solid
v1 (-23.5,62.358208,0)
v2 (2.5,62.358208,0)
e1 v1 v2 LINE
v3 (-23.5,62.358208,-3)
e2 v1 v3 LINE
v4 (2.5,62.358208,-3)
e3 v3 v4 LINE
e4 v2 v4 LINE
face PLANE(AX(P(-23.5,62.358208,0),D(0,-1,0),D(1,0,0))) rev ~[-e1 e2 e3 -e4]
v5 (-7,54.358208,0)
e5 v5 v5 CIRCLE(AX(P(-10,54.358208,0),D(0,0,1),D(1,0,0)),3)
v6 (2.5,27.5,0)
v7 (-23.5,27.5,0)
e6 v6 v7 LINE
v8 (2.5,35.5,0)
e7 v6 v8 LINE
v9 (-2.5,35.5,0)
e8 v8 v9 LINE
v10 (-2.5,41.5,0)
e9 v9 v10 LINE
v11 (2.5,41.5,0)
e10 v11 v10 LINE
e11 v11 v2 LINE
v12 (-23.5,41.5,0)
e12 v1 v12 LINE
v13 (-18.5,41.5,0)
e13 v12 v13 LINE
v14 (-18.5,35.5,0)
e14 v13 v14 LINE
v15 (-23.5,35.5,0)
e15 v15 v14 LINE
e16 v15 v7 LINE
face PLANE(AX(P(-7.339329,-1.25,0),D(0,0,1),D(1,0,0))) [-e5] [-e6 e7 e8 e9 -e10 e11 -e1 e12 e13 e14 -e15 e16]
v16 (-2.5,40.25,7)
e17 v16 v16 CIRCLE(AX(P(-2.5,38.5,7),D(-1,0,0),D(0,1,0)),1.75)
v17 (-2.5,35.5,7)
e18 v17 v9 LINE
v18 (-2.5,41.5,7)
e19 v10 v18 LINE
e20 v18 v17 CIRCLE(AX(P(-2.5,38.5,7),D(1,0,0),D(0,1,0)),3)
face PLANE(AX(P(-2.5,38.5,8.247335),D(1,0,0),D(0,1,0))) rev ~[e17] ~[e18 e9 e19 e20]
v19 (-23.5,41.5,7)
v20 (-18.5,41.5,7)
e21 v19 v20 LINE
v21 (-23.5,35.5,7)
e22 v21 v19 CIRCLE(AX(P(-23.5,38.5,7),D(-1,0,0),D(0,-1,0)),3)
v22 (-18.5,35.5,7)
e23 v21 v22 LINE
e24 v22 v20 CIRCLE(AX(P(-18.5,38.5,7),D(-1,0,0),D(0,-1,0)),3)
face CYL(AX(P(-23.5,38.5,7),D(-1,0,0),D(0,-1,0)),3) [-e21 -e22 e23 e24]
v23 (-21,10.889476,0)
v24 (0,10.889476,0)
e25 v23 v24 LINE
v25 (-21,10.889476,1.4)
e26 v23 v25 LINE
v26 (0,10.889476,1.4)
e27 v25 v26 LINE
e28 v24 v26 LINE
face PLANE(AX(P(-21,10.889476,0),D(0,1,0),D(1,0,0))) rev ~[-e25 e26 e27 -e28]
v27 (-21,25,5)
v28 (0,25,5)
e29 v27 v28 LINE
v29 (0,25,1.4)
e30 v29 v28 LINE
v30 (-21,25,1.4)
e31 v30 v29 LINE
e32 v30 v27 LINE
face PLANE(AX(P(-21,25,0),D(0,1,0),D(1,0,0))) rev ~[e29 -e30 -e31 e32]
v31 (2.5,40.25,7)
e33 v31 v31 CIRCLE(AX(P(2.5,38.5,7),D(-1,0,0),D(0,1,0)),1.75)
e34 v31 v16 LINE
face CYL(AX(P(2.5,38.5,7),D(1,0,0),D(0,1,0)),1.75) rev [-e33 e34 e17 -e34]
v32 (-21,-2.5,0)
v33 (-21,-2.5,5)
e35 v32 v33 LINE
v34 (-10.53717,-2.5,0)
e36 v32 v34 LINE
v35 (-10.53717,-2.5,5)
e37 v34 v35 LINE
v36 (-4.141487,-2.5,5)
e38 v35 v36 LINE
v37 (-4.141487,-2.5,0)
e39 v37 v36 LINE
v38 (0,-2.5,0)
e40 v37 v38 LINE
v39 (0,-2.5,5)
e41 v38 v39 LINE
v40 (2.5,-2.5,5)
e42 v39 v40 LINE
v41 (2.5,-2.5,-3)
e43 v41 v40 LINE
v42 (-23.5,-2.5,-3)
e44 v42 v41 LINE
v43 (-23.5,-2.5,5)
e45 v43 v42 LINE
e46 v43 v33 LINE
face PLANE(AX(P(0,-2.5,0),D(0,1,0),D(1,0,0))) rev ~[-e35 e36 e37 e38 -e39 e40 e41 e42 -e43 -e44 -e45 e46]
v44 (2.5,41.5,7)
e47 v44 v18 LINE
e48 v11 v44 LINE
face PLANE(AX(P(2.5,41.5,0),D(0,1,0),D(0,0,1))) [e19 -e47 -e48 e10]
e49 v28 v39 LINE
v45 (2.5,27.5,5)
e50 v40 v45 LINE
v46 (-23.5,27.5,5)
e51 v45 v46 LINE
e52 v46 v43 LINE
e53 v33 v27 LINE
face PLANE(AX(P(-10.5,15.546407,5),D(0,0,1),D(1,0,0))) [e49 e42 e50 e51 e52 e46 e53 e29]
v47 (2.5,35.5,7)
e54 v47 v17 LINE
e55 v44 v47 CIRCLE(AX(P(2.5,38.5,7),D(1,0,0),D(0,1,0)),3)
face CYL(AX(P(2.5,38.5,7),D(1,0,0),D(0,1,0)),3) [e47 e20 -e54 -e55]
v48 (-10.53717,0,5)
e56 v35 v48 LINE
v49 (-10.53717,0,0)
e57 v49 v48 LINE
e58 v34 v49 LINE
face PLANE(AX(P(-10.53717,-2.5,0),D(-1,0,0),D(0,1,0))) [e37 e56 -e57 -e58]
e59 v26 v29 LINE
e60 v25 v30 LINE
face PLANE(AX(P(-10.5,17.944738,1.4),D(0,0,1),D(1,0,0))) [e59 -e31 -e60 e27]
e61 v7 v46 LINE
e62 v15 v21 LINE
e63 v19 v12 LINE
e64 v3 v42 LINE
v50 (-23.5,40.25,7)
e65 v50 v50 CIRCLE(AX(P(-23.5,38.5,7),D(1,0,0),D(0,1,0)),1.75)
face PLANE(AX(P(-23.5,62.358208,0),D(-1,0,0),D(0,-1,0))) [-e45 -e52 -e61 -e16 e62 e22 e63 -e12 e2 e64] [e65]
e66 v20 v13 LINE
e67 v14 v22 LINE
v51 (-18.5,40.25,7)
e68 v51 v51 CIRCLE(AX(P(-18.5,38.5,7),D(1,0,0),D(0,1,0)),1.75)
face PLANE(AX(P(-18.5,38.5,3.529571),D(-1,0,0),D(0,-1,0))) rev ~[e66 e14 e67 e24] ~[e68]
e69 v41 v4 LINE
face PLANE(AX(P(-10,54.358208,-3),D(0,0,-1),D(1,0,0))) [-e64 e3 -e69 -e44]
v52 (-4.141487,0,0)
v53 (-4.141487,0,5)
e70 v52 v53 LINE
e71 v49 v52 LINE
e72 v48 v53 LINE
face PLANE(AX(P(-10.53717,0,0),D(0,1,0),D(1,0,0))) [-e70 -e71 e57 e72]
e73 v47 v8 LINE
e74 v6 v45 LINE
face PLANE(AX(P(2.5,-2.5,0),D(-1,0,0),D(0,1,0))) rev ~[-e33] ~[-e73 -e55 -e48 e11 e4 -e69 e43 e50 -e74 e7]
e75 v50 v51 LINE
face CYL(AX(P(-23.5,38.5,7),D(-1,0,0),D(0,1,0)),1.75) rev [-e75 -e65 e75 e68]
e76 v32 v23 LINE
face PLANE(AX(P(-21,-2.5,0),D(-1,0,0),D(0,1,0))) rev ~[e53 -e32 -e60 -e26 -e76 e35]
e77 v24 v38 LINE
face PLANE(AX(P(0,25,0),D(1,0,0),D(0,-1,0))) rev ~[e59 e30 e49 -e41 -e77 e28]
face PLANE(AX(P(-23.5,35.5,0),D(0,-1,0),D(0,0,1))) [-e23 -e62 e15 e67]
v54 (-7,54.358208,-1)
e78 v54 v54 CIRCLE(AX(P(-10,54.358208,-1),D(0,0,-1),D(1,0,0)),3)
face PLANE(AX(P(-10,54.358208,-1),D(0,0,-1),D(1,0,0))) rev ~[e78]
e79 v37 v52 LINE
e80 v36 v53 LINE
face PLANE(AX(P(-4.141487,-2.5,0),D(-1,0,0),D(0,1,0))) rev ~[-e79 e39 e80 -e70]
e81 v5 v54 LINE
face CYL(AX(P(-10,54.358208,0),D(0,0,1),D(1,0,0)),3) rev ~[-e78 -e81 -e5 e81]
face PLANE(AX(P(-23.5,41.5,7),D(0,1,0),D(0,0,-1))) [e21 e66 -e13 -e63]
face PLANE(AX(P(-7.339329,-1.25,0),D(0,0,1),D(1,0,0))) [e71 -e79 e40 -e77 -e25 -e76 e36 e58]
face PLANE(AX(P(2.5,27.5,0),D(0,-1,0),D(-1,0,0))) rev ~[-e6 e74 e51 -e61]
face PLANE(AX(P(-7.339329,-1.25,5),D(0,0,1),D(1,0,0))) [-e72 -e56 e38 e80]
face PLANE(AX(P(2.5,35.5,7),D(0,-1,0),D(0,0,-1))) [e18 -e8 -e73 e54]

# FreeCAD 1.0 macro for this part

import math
import FreeCAD as App
import Part
import Sketcher
from FreeCAD import Vector
Q = App.Units.Quantity


def add_polygon(sketch, points):
    """Adds a closed chain of lines whose ends are joined by coincident constraints."""
    first, n = sketch.GeometryCount, len(points)
    for a, b in zip(points, points[1:] + points[:1]):
        sketch.addGeometry(Part.LineSegment(App.Vector(*a, 0), App.Vector(*b, 0)), False)
    for i in range(n):
        sketch.addConstraint(Sketcher.Constraint("Coincident", first + i, 2, first + (i + 1) % n, 1))

doc = App.newDocument("Part")
body = doc.addObject("PartDesign::Body", "Body")

sketch1 = doc.addObject("Sketcher::SketchObject", "Sketch")
body.addObject(sketch1)
sketch1.AttachmentSupport = (doc.XY_Plane, [""])
sketch1.MapMode = "FlatFace"
add_polygon(sketch1, [(2.5, -2.5), (2.5, 62.4), (-23.5, 62.4), (-23.5, -2.5)])
sketch1.addGeometry(Part.Circle(Vector(-10, 54.4, 0), Vector(0, 0, 1), 3), False)
sketch1.addConstraint([
    Sketcher.Constraint("Vertical", 0),
    Sketcher.Constraint("Horizontal", 1),
    Sketcher.Constraint("Vertical", 2),
    Sketcher.Constraint("Horizontal", 3),
    Sketcher.Constraint("Diameter", 4, Q("6 mm")),
    Sketcher.Constraint("DistanceX", 1, 2, 1, 1, Q("26 mm")),
    Sketcher.Constraint("DistanceX", 4, 3, -1, 1, Q("10 mm")),
    Sketcher.Constraint("DistanceY", 4, 3, 0, 2, Q("8 mm")),
    Sketcher.Constraint("DistanceX", -1, 1, 0, 2, Q("2.5 mm")),
    Sketcher.Constraint("DistanceY", 2, 2, -1, 1, Q("2.5 mm")),
    Sketcher.Constraint("DistanceY", 0, 1, 0, 2, Q("64.858208 mm")),
])
pad1 = doc.addObject("PartDesign::Pad", "Pad")
body.addObject(pad1)
pad1.Profile = sketch1
pad1.Length = 3
pad1.Reversed = True

sketch2 = doc.addObject("Sketcher::SketchObject", "Sketch001")
body.addObject(sketch2)
sketch2.AttachmentSupport = (doc.XY_Plane, [""])
sketch2.MapMode = "FlatFace"
add_polygon(sketch2, [(0, -2.5), (2.5, -2.5), (2.5, 27.5), (-23.5, 27.5), (-23.5, -2.5), (-21, -2.5), (-21, 25), (0, 25)])
add_polygon(sketch2, [(-10.5, 0), (-10.5, -2.5), (-4.1, -2.5), (-4.1, 0)])
sketch2.addConstraint([
    Sketcher.Constraint("Horizontal", 0),
    Sketcher.Constraint("Vertical", 1),
    Sketcher.Constraint("Horizontal", 2),
    Sketcher.Constraint("Vertical", 3),
    Sketcher.Constraint("Horizontal", 4),
    Sketcher.Constraint("Vertical", 5),
    Sketcher.Constraint("Horizontal", 6),
    Sketcher.Constraint("Vertical", 7),
    Sketcher.Constraint("Vertical", 8),
    Sketcher.Constraint("Horizontal", 9),
    Sketcher.Constraint("Vertical", 10),
    Sketcher.Constraint("Horizontal", 11),
    Sketcher.Constraint("PointOnObject", 6, 2, -2),
    Sketcher.Constraint("PointOnObject", 10, 2, -1),
    Sketcher.Constraint("Horizontal", 0, 2, 3, 2),
    Sketcher.Constraint("Horizontal", 7, 2, 8, 2),
    Sketcher.Constraint("Equal", 0, 4),
    Sketcher.Constraint("Equal", 4, 8),
    Sketcher.Constraint("DistanceX", 2, 2, 2, 1, Q("26 mm")),
    Sketcher.Constraint("DistanceX", 6, 1, 6, 2, Q("21 mm")),
    Sketcher.Constraint("DistanceY", 1, 1, 1, 2, Q("30 mm")),
    Sketcher.Constraint("DistanceY", 5, 1, 5, 2, Q("27.5 mm")),
    Sketcher.Constraint("DistanceX", 9, 1, 9, 2, Q("6.395683 mm")),
    Sketcher.Constraint("DistanceX", 8, 2, -1, 1, Q("10.53717 mm")),
])
pad2 = doc.addObject("PartDesign::Pad", "Pad001")
body.addObject(pad2)
pad2.Profile = sketch2
pad2.Length = 5

sketch3 = doc.addObject("Sketcher::SketchObject", "Sketch002")
body.addObject(sketch3)
sketch3.AttachmentSupport = (doc.XY_Plane, [""])
sketch3.MapMode = "FlatFace"
add_polygon(sketch3, [(-21, 25), (-21, 11), (0, 11), (0, 25)])
sketch3.addConstraint([
    Sketcher.Constraint("Vertical", 0),
    Sketcher.Constraint("Horizontal", 1),
    Sketcher.Constraint("Vertical", 2),
    Sketcher.Constraint("Horizontal", 3),
    Sketcher.Constraint("PointOnObject", 1, 2, -2),
    Sketcher.Constraint("DistanceX", 1, 1, 1, 2, Q("21 mm")),
    Sketcher.Constraint("DistanceY", -1, 1, 2, 2, Q("25 mm")),
    Sketcher.Constraint("DistanceY", 0, 2, 0, 1, Q("14.110524 mm")),
])
pad3 = doc.addObject("PartDesign::Pad", "Pad002")
body.addObject(pad3)
pad3.Profile = sketch3
pad3.Length = 1.4

sketch4 = doc.addObject("Sketcher::SketchObject", "Sketch003")
body.addObject(sketch4)
sketch4.AttachmentSupport = (doc.YZ_Plane, [""])
sketch4.MapMode = "FlatFace"
sketch4.AttachmentOffset = App.Placement(Vector(0, 0, 2.5), App.Rotation())
sketch4.addGeometry([
    Part.ArcOfCircle(Part.Circle(Vector(38.5, 7, 0), Vector(0, 0, 1), 3), math.radians(0), math.radians(180)),
    Part.LineSegment(Vector(35.5, 7, 0), Vector(35.5, 0, 0)),
    Part.LineSegment(Vector(35.5, 0, 0), Vector(41.5, 0, 0)),
    Part.LineSegment(Vector(41.5, 0, 0), Vector(41.5, 7, 0)),
    Part.Circle(Vector(38.5, 7, 0), Vector(0, 0, 1), 1.8),
], False)
sketch4.addConstraint([
    Sketcher.Constraint("Tangent", 0, 2, 1, 1),
    Sketcher.Constraint("Coincident", 1, 2, 2, 1),
    Sketcher.Constraint("Coincident", 2, 2, 3, 1),
    Sketcher.Constraint("Tangent", 3, 2, 0, 1),
    Sketcher.Constraint("Vertical", 1),
    Sketcher.Constraint("Horizontal", 2),
    Sketcher.Constraint("Vertical", 3),
    Sketcher.Constraint("Coincident", 4, 3, 0, 3),
    Sketcher.Constraint("PointOnObject", 1, 2, -1),
    Sketcher.Constraint("Radius", 0, Q("3 mm")),
    Sketcher.Constraint("Diameter", 4, Q("3.5 mm")),
    Sketcher.Constraint("DistanceY", 1, 2, 1, 1, Q("7 mm")),
    Sketcher.Constraint("DistanceX", -1, 1, 0, 3, Q("38.5 mm")),
])
pad4 = doc.addObject("PartDesign::Pad", "Pad003")
body.addObject(pad4)
pad4.Profile = sketch4
pad4.Length = 5
pad4.Reversed = True

sketch5 = doc.addObject("Sketcher::SketchObject", "Sketch004")
body.addObject(sketch5)
sketch5.AttachmentSupport = (doc.YZ_Plane, [""])
sketch5.MapMode = "FlatFace"
sketch5.AttachmentOffset = App.Placement(Vector(0, 0, -23.5), App.Rotation())
sketch5.addGeometry([
    Part.LineSegment(Vector(41.5, 7, 0), Vector(41.5, 0, 0)),
    Part.LineSegment(Vector(41.5, 0, 0), Vector(35.5, 0, 0)),
    Part.LineSegment(Vector(35.5, 0, 0), Vector(35.5, 7, 0)),
    Part.ArcOfCircle(Part.Circle(Vector(38.5, 7, 0), Vector(0, 0, 1), 3), math.radians(0), math.radians(180)),
    Part.Circle(Vector(38.5, 7, 0), Vector(0, 0, 1), 1.8),
], False)
sketch5.addConstraint([
    Sketcher.Constraint("Coincident", 0, 2, 1, 1),
    Sketcher.Constraint("Coincident", 1, 2, 2, 1),
    Sketcher.Constraint("Tangent", 2, 2, 3, 2),
    Sketcher.Constraint("Tangent", 3, 1, 0, 1),
    Sketcher.Constraint("Vertical", 0),
    Sketcher.Constraint("Horizontal", 1),
    Sketcher.Constraint("Vertical", 2),
    Sketcher.Constraint("Coincident", 4, 3, 3, 3),
    Sketcher.Constraint("PointOnObject", 0, 2, -1),
    Sketcher.Constraint("Radius", 3, Q("3 mm")),
    Sketcher.Constraint("Diameter", 4, Q("3.5 mm")),
    Sketcher.Constraint("DistanceY", 0, 2, 0, 1, Q("7 mm")),
    Sketcher.Constraint("DistanceX", -1, 1, 3, 3, Q("38.5 mm")),
])
pad5 = doc.addObject("PartDesign::Pad", "Pad004")
body.addObject(pad5)
pad5.Profile = sketch5
pad5.Length = 5

sketch6 = doc.addObject("Sketcher::SketchObject", "Sketch005")
body.addObject(sketch6)
sketch6.AttachmentSupport = (doc.XY_Plane, [""])
sketch6.MapMode = "FlatFace"
sketch6.AttachmentOffset = App.Placement(Vector(0, 0, -3), App.Rotation())
sketch6.addGeometry(Part.Circle(Vector(-10, 54.4, 0), Vector(0, 0, 1), 3), False)
sketch6.addConstraint([
    Sketcher.Constraint("Diameter", 0, Q("6 mm")),
    Sketcher.Constraint("DistanceX", 0, 3, -1, 1, Q("10 mm")),
    Sketcher.Constraint("DistanceY", -1, 1, 0, 3, Q("54.358208 mm")),
])
pad6 = doc.addObject("PartDesign::Pad", "Pad005")
body.addObject(pad6)
pad6.Profile = sketch6
pad6.Length = 2

doc.recompute()
